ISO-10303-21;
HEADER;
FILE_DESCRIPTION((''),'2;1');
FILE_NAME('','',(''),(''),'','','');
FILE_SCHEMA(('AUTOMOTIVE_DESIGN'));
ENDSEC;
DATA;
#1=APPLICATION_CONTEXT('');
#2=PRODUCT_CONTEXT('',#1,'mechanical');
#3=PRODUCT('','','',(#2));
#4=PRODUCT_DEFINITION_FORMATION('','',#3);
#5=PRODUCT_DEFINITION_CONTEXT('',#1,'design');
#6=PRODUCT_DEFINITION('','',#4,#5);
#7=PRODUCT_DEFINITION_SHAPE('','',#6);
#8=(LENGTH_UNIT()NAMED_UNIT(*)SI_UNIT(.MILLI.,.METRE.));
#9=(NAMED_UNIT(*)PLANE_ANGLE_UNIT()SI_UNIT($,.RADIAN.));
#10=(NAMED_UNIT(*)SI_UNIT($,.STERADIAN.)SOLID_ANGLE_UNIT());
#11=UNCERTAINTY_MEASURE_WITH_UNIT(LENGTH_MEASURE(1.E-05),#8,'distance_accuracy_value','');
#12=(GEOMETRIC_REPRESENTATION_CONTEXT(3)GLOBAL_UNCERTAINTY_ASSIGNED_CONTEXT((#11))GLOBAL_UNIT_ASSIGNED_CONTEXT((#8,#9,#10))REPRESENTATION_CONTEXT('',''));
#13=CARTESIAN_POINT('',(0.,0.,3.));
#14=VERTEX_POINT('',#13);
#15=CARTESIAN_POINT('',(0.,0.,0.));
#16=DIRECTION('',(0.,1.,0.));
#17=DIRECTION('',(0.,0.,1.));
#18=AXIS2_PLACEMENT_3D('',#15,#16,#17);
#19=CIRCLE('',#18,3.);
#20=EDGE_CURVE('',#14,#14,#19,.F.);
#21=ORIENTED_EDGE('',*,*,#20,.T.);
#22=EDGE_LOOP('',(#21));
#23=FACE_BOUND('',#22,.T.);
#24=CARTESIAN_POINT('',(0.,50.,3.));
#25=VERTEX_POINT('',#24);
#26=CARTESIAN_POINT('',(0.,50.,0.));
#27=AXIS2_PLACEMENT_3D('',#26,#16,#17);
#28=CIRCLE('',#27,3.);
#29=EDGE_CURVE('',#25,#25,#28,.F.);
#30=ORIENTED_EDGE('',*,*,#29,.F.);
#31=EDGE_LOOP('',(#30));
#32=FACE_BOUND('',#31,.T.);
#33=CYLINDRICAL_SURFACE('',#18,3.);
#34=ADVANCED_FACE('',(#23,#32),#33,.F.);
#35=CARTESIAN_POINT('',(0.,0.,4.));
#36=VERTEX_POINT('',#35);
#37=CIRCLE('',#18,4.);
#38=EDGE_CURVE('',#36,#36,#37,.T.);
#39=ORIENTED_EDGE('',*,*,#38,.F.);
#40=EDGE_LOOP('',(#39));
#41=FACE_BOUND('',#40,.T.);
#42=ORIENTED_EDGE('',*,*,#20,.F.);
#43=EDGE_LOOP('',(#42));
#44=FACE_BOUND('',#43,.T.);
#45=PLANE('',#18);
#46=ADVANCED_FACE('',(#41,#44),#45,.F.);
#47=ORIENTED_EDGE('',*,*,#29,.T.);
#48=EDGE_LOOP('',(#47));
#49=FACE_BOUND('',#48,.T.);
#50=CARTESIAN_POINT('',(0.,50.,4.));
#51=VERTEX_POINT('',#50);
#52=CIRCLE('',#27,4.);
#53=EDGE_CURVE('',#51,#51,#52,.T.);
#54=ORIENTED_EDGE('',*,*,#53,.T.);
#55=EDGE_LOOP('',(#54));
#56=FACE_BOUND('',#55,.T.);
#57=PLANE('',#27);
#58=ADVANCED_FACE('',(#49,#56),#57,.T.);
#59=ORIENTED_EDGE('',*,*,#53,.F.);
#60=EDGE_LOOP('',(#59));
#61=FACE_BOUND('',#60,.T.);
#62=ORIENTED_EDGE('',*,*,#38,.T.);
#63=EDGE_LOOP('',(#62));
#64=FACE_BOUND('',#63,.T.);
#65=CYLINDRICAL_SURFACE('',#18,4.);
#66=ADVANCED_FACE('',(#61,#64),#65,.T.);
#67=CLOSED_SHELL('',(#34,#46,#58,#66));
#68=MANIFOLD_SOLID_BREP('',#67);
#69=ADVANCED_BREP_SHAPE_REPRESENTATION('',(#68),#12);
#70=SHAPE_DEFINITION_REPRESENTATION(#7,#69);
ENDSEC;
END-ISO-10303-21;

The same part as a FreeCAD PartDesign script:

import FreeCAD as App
import Part
import Sketcher

V = App.Vector
Q = App.Units.Quantity

doc = App.newDocument("Part")
body = doc.addObject("PartDesign::Body", "Body")

# Sketch on XZ plane
sketch1 = body.newObject("Sketcher::SketchObject", "Sketch")
sketch1.AttachmentSupport = (doc.getObject("XZ_Plane"), [""])
sketch1.MapMode = "FlatFace"
sketch1.addGeometry([
    Part.Circle(V(0, 0, 0), V(0, 0, 1), 4),
    Part.Circle(V(0, 0, 0), V(0, 0, 1), 3),
], False)
sketch1.addConstraint([
    Sketcher.Constraint("Coincident", 0, 3, -1, 1),
    Sketcher.Constraint("Coincident", 1, 3, -1, 1),
    Sketcher.Constraint("Diameter", 0, Q("8 mm")),
    Sketcher.Constraint("Diameter", 1, Q("6 mm")),
])

# Sketch on XY plane
sketch2 = body.newObject("Sketcher::SketchObject", "Sketch001")
sketch2.AttachmentSupport = (doc.getObject("XY_Plane"), [""])
sketch2.MapMode = "FlatFace"
sketch2.addGeometry(Part.LineSegment(V(0, 0, 0), V(0, 50, 0)), False)
sketch2.addConstraint([
    Sketcher.Constraint("Vertical", 0),
    Sketcher.Constraint("Coincident", 0, 1, -1, 1),
    Sketcher.Constraint("DistanceY", 0, 1, 0, 2, Q("50 mm")),
])
doc.recompute()

additivepipe = body.newObject("PartDesign::AdditivePipe", "AdditivePipe")
additivepipe.Profile = sketch1
additivepipe.Spine = (sketch2, ["Edge1"])

doc.recompute()
